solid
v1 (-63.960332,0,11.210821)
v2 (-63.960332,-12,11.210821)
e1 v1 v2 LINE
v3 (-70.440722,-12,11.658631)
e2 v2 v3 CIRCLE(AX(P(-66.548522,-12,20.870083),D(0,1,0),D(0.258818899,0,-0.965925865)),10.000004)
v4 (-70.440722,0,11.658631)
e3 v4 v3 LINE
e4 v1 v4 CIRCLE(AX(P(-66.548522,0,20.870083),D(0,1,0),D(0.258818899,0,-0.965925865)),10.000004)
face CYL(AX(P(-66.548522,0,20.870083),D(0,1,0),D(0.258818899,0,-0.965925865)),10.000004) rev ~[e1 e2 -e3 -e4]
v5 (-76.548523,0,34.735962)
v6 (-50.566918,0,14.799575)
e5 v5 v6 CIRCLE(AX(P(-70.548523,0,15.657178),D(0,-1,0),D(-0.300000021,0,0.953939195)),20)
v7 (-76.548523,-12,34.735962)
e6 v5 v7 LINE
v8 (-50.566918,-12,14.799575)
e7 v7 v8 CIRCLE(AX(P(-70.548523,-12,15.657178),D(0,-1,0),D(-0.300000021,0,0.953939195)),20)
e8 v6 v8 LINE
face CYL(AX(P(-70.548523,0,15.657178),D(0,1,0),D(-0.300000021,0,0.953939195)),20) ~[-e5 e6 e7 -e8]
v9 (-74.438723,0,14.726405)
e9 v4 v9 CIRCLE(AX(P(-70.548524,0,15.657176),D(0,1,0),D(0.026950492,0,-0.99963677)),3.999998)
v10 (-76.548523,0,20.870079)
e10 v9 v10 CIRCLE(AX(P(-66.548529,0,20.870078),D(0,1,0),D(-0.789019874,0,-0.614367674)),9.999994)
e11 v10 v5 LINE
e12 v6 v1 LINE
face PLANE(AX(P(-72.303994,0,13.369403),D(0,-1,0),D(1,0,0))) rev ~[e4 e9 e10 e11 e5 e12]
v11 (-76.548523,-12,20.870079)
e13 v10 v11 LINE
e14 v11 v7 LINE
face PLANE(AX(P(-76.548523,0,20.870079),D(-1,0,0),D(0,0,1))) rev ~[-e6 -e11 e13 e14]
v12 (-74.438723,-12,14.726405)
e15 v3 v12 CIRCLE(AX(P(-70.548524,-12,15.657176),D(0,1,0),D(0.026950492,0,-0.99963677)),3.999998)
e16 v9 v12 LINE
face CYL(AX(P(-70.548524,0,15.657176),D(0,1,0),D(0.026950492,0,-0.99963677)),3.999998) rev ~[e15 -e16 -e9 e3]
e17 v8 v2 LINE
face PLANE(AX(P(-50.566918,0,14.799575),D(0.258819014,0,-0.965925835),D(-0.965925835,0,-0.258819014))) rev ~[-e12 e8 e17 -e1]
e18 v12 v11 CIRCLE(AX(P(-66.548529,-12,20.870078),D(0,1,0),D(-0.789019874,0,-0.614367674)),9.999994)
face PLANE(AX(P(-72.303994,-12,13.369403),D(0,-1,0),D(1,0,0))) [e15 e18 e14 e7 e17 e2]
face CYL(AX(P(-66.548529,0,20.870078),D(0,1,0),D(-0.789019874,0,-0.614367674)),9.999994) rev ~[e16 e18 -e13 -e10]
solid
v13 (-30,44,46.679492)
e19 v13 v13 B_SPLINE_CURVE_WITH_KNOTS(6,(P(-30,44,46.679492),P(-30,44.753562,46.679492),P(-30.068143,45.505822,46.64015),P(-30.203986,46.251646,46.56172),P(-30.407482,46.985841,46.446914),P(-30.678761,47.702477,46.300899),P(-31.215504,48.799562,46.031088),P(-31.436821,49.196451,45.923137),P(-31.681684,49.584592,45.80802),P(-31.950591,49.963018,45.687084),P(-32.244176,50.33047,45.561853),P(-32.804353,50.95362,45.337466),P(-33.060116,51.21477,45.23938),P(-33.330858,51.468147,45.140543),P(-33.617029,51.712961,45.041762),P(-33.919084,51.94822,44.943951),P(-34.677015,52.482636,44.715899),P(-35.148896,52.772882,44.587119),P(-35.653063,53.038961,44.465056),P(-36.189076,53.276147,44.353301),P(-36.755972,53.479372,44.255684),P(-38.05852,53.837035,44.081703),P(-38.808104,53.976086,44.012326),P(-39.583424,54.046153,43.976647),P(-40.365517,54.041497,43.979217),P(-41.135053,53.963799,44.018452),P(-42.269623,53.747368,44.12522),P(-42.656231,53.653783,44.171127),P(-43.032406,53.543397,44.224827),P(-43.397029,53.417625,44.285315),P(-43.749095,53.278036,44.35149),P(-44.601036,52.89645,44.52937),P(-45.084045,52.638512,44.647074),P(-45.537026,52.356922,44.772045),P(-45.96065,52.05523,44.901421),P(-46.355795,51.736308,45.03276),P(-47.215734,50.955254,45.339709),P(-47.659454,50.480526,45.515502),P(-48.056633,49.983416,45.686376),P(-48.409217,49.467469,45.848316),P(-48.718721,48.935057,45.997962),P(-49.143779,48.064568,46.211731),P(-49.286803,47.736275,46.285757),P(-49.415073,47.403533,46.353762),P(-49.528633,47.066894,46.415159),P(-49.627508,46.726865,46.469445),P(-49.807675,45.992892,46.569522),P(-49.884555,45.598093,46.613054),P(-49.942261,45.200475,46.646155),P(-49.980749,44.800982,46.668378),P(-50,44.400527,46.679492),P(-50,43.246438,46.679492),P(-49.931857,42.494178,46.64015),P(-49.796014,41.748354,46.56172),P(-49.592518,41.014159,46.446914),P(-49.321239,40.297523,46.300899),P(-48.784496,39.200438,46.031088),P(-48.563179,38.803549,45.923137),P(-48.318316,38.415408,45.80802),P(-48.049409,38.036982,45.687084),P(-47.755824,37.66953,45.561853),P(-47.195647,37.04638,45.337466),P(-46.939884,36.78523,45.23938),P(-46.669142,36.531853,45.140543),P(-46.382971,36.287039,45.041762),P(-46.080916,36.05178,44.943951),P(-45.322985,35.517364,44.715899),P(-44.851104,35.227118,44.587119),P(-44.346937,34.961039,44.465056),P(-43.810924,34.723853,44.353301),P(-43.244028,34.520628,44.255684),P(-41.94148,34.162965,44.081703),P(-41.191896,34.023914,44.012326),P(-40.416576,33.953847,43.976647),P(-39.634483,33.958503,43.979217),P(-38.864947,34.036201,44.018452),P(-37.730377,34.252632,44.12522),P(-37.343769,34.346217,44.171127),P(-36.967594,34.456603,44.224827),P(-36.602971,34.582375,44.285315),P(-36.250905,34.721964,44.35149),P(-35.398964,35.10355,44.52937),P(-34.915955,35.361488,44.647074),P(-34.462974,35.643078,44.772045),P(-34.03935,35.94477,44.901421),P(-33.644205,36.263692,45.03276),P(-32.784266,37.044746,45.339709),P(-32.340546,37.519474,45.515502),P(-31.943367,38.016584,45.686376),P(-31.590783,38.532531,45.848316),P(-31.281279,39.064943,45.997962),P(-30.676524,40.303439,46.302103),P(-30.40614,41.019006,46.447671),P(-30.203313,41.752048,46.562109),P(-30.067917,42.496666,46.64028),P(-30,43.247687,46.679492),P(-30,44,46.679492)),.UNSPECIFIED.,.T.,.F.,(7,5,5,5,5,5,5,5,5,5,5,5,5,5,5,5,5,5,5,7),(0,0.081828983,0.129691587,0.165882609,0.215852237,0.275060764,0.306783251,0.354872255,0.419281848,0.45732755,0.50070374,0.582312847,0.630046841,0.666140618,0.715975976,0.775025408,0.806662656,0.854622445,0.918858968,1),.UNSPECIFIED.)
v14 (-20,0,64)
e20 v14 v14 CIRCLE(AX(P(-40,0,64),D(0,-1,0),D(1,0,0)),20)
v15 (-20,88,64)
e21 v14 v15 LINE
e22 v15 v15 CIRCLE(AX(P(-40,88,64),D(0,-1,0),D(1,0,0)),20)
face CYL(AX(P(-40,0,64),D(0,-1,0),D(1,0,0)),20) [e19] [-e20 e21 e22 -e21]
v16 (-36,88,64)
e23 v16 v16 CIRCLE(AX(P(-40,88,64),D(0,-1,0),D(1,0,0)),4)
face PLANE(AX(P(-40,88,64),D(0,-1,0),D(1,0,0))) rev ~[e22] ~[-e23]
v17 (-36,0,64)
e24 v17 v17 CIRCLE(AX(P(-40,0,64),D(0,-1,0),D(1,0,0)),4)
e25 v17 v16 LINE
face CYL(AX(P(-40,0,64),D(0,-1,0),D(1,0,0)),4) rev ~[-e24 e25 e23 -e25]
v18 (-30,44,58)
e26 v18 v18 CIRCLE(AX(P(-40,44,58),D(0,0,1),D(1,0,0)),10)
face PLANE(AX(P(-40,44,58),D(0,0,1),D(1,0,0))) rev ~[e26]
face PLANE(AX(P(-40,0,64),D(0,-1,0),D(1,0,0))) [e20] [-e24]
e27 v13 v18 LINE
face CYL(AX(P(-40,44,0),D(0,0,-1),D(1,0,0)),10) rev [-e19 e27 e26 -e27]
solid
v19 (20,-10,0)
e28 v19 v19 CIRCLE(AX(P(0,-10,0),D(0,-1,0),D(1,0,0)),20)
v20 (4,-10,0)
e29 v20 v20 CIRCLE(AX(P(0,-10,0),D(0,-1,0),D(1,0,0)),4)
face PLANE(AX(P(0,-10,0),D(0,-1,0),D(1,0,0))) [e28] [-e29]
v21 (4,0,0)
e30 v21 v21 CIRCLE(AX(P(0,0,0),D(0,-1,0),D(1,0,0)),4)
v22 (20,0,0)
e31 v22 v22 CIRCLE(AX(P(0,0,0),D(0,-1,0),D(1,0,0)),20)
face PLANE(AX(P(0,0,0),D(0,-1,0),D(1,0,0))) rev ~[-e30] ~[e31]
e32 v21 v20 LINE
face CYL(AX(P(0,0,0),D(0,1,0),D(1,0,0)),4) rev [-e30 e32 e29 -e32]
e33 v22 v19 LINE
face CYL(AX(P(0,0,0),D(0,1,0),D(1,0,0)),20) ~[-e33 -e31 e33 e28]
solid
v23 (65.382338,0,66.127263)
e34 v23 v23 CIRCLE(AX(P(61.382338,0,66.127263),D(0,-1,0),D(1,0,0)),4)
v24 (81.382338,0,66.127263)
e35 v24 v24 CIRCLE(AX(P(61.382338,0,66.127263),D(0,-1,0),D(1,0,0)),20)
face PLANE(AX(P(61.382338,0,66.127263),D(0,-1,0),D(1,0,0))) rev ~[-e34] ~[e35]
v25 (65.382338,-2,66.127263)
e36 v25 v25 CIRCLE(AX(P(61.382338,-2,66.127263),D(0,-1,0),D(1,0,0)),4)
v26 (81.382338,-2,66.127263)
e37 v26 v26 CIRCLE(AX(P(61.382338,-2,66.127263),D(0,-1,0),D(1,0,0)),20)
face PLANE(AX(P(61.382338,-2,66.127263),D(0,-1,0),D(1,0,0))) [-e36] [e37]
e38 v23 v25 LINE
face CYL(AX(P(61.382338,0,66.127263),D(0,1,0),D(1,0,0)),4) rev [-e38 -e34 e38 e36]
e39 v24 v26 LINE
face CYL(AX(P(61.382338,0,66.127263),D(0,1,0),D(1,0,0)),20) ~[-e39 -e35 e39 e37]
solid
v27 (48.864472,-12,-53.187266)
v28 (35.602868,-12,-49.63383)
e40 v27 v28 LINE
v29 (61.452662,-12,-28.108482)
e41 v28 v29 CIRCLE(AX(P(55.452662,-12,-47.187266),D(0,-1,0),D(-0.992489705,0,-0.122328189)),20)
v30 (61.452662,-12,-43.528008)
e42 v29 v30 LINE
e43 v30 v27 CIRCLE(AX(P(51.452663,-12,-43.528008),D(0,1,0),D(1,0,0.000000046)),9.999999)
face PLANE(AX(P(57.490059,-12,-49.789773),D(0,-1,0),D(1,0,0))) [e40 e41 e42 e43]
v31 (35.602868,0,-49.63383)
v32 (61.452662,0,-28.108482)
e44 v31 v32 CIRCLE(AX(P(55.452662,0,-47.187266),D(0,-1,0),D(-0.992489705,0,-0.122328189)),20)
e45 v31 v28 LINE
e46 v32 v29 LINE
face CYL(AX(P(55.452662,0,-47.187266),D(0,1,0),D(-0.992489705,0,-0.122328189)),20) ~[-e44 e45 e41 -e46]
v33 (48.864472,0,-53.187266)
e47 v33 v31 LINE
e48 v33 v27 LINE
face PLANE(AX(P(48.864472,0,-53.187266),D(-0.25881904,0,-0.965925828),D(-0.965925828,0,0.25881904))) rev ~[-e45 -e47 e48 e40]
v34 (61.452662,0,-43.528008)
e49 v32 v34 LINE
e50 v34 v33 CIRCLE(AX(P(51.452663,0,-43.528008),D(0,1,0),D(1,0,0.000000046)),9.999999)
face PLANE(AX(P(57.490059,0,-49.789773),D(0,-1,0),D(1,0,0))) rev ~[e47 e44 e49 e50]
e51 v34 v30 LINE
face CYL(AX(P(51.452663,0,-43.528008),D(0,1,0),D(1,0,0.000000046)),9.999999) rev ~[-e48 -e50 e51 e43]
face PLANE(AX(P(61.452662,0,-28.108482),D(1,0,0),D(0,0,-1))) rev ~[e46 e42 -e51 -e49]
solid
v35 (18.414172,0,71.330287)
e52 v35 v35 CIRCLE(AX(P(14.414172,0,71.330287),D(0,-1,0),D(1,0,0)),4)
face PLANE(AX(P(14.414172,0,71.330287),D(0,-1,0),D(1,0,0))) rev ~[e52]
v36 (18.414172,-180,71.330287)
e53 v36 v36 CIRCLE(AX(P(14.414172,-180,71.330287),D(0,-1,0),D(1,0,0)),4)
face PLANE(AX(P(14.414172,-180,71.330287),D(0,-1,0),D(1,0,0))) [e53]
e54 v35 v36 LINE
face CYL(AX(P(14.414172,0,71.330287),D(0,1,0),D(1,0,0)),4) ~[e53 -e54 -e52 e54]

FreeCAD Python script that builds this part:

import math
import FreeCAD as App
import Part
import Sketcher
from FreeCAD import Vector
Q = App.Units.Quantity

doc = App.newDocument("Part")
body = doc.addObject("PartDesign::Body", "Body")

sketch1 = body.newObject("Sketcher::SketchObject", "Sketch")
sketch1.AttachmentSupport = (doc.getObject("XZ_Plane"), [""])
sketch1.MapMode = "FlatFace"
sketch1.addGeometry(Part.Circle(Vector(0, 0, 0), Vector(0, 0, 1), 20), False)
sketch1.addGeometry(Part.Circle(Vector(0, 0, 0), Vector(0, 0, 1), 4), False)
sketch1.addConstraint(Sketcher.Constraint("Coincident", 0, 3, -1, 1))
sketch1.addConstraint(Sketcher.Constraint("Coincident", 1, 3, -1, 1))
sketch1.addConstraint(Sketcher.Constraint("Diameter", 0, Q("40 mm")))
sketch1.addConstraint(Sketcher.Constraint("Diameter", 1, Q("8 mm")))
pad1 = body.newObject("PartDesign::Pad", "Pad")
pad1.Profile = sketch1
pad1.Length = 10
body2 = doc.addObject("PartDesign::Body", "Body001")

sketch2 = body2.newObject("Sketcher::SketchObject", "Sketch001")
sketch2.AttachmentSupport = (doc.getObject("XZ_Plane001"), [""])
sketch2.MapMode = "FlatFace"
sketch2.addGeometry(Part.LineSegment(Vector(-76.5, 20.9, 0), Vector(-76.5, 34.7, 0)), False)
sketch2.addGeometry(Part.ArcOfCircle(Part.Circle(Vector(-70.5, 15.7, 0), Vector(0, 0, 1), 20), math.radians(107), math.radians(358)), False)
sketch2.addGeometry(Part.LineSegment(Vector(-50.6, 14.8, 0), Vector(-64, 11.2, 0)), False)
sketch2.addGeometry(Part.ArcOfCircle(Part.Circle(Vector(-66.5, 20.9, 0), Vector(0, 0, 1), 10), math.radians(-113), math.radians(-75)), False)
sketch2.addGeometry(Part.ArcOfCircle(Part.Circle(Vector(-70.5, 15.7, 0), Vector(0, 0, 1), 4), math.radians(-167), math.radians(-88)), False)
sketch2.addGeometry(Part.ArcOfCircle(Part.Circle(Vector(-66.5, 20.9, 0), Vector(0, 0, 1), 10), math.radians(180), math.radians(218)), False)
sketch2.addConstraint(Sketcher.Constraint("Coincident", 0, 2, 1, 1))
sketch2.addConstraint(Sketcher.Constraint("Coincident", 1, 2, 2, 1))
sketch2.addConstraint(Sketcher.Constraint("Tangent", 2, 2, 3, 2))
sketch2.addConstraint(Sketcher.Constraint("Coincident", 3, 1, 4, 2))
sketch2.addConstraint(Sketcher.Constraint("Coincident", 4, 1, 5, 2))
sketch2.addConstraint(Sketcher.Constraint("Tangent", 5, 1, 0, 1))
sketch2.addConstraint(Sketcher.Constraint("Vertical", 0))
sketch2.addConstraint(Sketcher.Constraint("Coincident", 4, 3, 1, 3))
sketch2.addConstraint(Sketcher.Constraint("Coincident", 5, 3, 3, 3))
sketch2.addConstraint(Sketcher.Constraint("Radius", 1, Q("20 mm")))
sketch2.addConstraint(Sketcher.Constraint("Angle", 2, Q("-165.000002 deg")))
sketch2.addConstraint(Sketcher.Constraint("DistanceX", 1, 3, 3, 3, Q("4.000001 mm")))
sketch2.addConstraint(Sketcher.Constraint("DistanceX", 0, 2, 3, 3, Q("10.000001 mm")))
sketch2.addConstraint(Sketcher.Constraint("Radius", 3, Q("10.000004 mm")))
sketch2.addConstraint(Sketcher.Constraint("Radius", 4, Q("3.999998 mm")))
sketch2.addConstraint(Sketcher.Constraint("DistanceX", 4, 1, 3, 1, Q("3.998001 mm")))
sketch2.addConstraint(Sketcher.Constraint("DistanceY", -1, 1, 1, 3, Q("15.657178 mm")))
sketch2.addConstraint(Sketcher.Constraint("DistanceX", 3, 3, -1, 1, Q("66.548522 mm")))
pad2 = body2.newObject("PartDesign::Pad", "Pad001")
pad2.Profile = sketch2
pad2.Length = 12
body3 = doc.addObject("PartDesign::Body", "Body002")

sketch3 = body3.newObject("Sketcher::SketchObject", "Sketch002")
sketch3.AttachmentSupport = (doc.getObject("XZ_Plane002"), [""])
sketch3.MapMode = "FlatFace"
sketch3.addGeometry(Part.Circle(Vector(61.4, 66.1, 0), Vector(0, 0, 1), 20), False)
sketch3.addGeometry(Part.Circle(Vector(61.4, 66.1, 0), Vector(0, 0, 1), 4), False)
sketch3.addConstraint(Sketcher.Constraint("Coincident", 1, 3, 0, 3))
sketch3.addConstraint(Sketcher.Constraint("Diameter", 0, Q("40 mm")))
sketch3.addConstraint(Sketcher.Constraint("Diameter", 1, Q("8 mm")))
sketch3.addConstraint(Sketcher.Constraint("DistanceX", -1, 1, 0, 3, Q("61.382338 mm")))
sketch3.addConstraint(Sketcher.Constraint("DistanceY", -1, 1, 0, 3, Q("66.127263 mm")))
pad3 = body3.newObject("PartDesign::Pad", "Pad002")
pad3.Profile = sketch3
pad3.Length = 2
body4 = doc.addObject("PartDesign::Body", "Body003")

sketch4 = body4.newObject("Sketcher::SketchObject", "Sketch003")
sketch4.AttachmentSupport = (doc.getObject("XZ_Plane003"), [""])
sketch4.MapMode = "FlatFace"
sketch4.addGeometry(Part.Circle(Vector(-40, 64, 0), Vector(0, 0, 1), 20), False)
sketch4.addGeometry(Part.Circle(Vector(-40, 64, 0), Vector(0, 0, 1), 4), False)
sketch4.addConstraint(Sketcher.Constraint("Coincident", 1, 3, 0, 3))
sketch4.addConstraint(Sketcher.Constraint("Diameter", 0, Q("40 mm")))
sketch4.addConstraint(Sketcher.Constraint("Diameter", 1, Q("8 mm")))
sketch4.addConstraint(Sketcher.Constraint("DistanceX", 0, 3, -1, 1, Q("40 mm")))
sketch4.addConstraint(Sketcher.Constraint("DistanceY", -1, 1, 0, 3, Q("64 mm")))
pad4 = body4.newObject("PartDesign::Pad", "Pad003")
pad4.Profile = sketch4
pad4.Length = 88
pad4.Reversed = True

sketch5 = body4.newObject("Sketcher::SketchObject", "Sketch004")
sketch5.AttachmentSupport = (doc.getObject("XY_Plane003"), [""])
sketch5.MapMode = "FlatFace"
sketch5.addGeometry(Part.Circle(Vector(-40, 44, 0), Vector(0, 0, 1), 10), False)
sketch5.addConstraint(Sketcher.Constraint("Diameter", 0, Q("20 mm")))
sketch5.addConstraint(Sketcher.Constraint("DistanceX", 0, 3, -1, 1, Q("40 mm")))
sketch5.addConstraint(Sketcher.Constraint("DistanceY", -1, 1, 0, 3, Q("44 mm")))
pocket1 = body4.newObject("PartDesign::Pocket", "Pocket")
pocket1.Profile = sketch5
pocket1.Length = 58
pocket1.Reversed = True
body5 = doc.addObject("PartDesign::Body", "Body004")

sketch6 = body5.newObject("Sketcher::SketchObject", "Sketch005")
sketch6.AttachmentSupport = (doc.getObject("XZ_Plane004"), [""])
sketch6.MapMode = "FlatFace"
sketch6.addGeometry(Part.LineSegment(Vector(49, -53, 0), Vector(36, -50, 0)), False)
sketch6.addGeometry(Part.ArcOfCircle(Part.Circle(Vector(55, -47, 0), Vector(0, 0, 1), 20), math.radians(-173), math.radians(73)), False)
sketch6.addGeometry(Part.LineSegment(Vector(61, -28, 0), Vector(61, -44, 0)), False)
sketch6.addGeometry(Part.ArcOfCircle(Part.Circle(Vector(51, -44, 0), Vector(0, 0, 1), 10), math.radians(-105), math.radians(0)), False)
sketch6.addConstraint(Sketcher.Constraint("Coincident", 0, 2, 1, 1))
sketch6.addConstraint(Sketcher.Constraint("Coincident", 1, 2, 2, 1))
sketch6.addConstraint(Sketcher.Constraint("Tangent", 2, 2, 3, 2))
sketch6.addConstraint(Sketcher.Constraint("Tangent", 3, 1, 0, 1))
sketch6.addConstraint(Sketcher.Constraint("Vertical", 2))
sketch6.addConstraint(Sketcher.Constraint("Radius", 1, Q("20 mm")))
sketch6.addConstraint(Sketcher.Constraint("Radius", 3, Q("9.999999 mm")))
sketch6.addConstraint(Sketcher.Constraint("Angle", 0, Q("165 deg")))
sketch6.addConstraint(Sketcher.Constraint("DistanceX", 3, 3, 1, 3, Q("4 mm")))
sketch6.addConstraint(Sketcher.Constraint("DistanceY", 3, 1, 1, 3, Q("6 mm")))
sketch6.addConstraint(Sketcher.Constraint("DistanceY", 3, 3, -1, 1, Q("43.528008 mm")))
sketch6.addConstraint(Sketcher.Constraint("DistanceX", -1, 1, 1, 2, Q("61.452662 mm")))
pad5 = body5.newObject("PartDesign::Pad", "Pad004")
pad5.Profile = sketch6
pad5.Length = 12
body6 = doc.addObject("PartDesign::Body", "Body005")

sketch7 = body6.newObject("Sketcher::SketchObject", "Sketch006")
sketch7.AttachmentSupport = (doc.getObject("XZ_Plane005"), [""])
sketch7.MapMode = "FlatFace"
sketch7.addGeometry(Part.Circle(Vector(14.4, 71.3, 0), Vector(0, 0, 1), 4), False)
sketch7.addConstraint(Sketcher.Constraint("Diameter", 0, Q("8 mm")))
sketch7.addConstraint(Sketcher.Constraint("DistanceX", -1, 1, 0, 3, Q("14.414172 mm")))
sketch7.addConstraint(Sketcher.Constraint("DistanceY", -1, 1, 0, 3, Q("71.330287 mm")))
pad6 = body6.newObject("PartDesign::Pad", "Pad005")
pad6.Profile = sketch7
pad6.Length = 180

doc.recompute()
